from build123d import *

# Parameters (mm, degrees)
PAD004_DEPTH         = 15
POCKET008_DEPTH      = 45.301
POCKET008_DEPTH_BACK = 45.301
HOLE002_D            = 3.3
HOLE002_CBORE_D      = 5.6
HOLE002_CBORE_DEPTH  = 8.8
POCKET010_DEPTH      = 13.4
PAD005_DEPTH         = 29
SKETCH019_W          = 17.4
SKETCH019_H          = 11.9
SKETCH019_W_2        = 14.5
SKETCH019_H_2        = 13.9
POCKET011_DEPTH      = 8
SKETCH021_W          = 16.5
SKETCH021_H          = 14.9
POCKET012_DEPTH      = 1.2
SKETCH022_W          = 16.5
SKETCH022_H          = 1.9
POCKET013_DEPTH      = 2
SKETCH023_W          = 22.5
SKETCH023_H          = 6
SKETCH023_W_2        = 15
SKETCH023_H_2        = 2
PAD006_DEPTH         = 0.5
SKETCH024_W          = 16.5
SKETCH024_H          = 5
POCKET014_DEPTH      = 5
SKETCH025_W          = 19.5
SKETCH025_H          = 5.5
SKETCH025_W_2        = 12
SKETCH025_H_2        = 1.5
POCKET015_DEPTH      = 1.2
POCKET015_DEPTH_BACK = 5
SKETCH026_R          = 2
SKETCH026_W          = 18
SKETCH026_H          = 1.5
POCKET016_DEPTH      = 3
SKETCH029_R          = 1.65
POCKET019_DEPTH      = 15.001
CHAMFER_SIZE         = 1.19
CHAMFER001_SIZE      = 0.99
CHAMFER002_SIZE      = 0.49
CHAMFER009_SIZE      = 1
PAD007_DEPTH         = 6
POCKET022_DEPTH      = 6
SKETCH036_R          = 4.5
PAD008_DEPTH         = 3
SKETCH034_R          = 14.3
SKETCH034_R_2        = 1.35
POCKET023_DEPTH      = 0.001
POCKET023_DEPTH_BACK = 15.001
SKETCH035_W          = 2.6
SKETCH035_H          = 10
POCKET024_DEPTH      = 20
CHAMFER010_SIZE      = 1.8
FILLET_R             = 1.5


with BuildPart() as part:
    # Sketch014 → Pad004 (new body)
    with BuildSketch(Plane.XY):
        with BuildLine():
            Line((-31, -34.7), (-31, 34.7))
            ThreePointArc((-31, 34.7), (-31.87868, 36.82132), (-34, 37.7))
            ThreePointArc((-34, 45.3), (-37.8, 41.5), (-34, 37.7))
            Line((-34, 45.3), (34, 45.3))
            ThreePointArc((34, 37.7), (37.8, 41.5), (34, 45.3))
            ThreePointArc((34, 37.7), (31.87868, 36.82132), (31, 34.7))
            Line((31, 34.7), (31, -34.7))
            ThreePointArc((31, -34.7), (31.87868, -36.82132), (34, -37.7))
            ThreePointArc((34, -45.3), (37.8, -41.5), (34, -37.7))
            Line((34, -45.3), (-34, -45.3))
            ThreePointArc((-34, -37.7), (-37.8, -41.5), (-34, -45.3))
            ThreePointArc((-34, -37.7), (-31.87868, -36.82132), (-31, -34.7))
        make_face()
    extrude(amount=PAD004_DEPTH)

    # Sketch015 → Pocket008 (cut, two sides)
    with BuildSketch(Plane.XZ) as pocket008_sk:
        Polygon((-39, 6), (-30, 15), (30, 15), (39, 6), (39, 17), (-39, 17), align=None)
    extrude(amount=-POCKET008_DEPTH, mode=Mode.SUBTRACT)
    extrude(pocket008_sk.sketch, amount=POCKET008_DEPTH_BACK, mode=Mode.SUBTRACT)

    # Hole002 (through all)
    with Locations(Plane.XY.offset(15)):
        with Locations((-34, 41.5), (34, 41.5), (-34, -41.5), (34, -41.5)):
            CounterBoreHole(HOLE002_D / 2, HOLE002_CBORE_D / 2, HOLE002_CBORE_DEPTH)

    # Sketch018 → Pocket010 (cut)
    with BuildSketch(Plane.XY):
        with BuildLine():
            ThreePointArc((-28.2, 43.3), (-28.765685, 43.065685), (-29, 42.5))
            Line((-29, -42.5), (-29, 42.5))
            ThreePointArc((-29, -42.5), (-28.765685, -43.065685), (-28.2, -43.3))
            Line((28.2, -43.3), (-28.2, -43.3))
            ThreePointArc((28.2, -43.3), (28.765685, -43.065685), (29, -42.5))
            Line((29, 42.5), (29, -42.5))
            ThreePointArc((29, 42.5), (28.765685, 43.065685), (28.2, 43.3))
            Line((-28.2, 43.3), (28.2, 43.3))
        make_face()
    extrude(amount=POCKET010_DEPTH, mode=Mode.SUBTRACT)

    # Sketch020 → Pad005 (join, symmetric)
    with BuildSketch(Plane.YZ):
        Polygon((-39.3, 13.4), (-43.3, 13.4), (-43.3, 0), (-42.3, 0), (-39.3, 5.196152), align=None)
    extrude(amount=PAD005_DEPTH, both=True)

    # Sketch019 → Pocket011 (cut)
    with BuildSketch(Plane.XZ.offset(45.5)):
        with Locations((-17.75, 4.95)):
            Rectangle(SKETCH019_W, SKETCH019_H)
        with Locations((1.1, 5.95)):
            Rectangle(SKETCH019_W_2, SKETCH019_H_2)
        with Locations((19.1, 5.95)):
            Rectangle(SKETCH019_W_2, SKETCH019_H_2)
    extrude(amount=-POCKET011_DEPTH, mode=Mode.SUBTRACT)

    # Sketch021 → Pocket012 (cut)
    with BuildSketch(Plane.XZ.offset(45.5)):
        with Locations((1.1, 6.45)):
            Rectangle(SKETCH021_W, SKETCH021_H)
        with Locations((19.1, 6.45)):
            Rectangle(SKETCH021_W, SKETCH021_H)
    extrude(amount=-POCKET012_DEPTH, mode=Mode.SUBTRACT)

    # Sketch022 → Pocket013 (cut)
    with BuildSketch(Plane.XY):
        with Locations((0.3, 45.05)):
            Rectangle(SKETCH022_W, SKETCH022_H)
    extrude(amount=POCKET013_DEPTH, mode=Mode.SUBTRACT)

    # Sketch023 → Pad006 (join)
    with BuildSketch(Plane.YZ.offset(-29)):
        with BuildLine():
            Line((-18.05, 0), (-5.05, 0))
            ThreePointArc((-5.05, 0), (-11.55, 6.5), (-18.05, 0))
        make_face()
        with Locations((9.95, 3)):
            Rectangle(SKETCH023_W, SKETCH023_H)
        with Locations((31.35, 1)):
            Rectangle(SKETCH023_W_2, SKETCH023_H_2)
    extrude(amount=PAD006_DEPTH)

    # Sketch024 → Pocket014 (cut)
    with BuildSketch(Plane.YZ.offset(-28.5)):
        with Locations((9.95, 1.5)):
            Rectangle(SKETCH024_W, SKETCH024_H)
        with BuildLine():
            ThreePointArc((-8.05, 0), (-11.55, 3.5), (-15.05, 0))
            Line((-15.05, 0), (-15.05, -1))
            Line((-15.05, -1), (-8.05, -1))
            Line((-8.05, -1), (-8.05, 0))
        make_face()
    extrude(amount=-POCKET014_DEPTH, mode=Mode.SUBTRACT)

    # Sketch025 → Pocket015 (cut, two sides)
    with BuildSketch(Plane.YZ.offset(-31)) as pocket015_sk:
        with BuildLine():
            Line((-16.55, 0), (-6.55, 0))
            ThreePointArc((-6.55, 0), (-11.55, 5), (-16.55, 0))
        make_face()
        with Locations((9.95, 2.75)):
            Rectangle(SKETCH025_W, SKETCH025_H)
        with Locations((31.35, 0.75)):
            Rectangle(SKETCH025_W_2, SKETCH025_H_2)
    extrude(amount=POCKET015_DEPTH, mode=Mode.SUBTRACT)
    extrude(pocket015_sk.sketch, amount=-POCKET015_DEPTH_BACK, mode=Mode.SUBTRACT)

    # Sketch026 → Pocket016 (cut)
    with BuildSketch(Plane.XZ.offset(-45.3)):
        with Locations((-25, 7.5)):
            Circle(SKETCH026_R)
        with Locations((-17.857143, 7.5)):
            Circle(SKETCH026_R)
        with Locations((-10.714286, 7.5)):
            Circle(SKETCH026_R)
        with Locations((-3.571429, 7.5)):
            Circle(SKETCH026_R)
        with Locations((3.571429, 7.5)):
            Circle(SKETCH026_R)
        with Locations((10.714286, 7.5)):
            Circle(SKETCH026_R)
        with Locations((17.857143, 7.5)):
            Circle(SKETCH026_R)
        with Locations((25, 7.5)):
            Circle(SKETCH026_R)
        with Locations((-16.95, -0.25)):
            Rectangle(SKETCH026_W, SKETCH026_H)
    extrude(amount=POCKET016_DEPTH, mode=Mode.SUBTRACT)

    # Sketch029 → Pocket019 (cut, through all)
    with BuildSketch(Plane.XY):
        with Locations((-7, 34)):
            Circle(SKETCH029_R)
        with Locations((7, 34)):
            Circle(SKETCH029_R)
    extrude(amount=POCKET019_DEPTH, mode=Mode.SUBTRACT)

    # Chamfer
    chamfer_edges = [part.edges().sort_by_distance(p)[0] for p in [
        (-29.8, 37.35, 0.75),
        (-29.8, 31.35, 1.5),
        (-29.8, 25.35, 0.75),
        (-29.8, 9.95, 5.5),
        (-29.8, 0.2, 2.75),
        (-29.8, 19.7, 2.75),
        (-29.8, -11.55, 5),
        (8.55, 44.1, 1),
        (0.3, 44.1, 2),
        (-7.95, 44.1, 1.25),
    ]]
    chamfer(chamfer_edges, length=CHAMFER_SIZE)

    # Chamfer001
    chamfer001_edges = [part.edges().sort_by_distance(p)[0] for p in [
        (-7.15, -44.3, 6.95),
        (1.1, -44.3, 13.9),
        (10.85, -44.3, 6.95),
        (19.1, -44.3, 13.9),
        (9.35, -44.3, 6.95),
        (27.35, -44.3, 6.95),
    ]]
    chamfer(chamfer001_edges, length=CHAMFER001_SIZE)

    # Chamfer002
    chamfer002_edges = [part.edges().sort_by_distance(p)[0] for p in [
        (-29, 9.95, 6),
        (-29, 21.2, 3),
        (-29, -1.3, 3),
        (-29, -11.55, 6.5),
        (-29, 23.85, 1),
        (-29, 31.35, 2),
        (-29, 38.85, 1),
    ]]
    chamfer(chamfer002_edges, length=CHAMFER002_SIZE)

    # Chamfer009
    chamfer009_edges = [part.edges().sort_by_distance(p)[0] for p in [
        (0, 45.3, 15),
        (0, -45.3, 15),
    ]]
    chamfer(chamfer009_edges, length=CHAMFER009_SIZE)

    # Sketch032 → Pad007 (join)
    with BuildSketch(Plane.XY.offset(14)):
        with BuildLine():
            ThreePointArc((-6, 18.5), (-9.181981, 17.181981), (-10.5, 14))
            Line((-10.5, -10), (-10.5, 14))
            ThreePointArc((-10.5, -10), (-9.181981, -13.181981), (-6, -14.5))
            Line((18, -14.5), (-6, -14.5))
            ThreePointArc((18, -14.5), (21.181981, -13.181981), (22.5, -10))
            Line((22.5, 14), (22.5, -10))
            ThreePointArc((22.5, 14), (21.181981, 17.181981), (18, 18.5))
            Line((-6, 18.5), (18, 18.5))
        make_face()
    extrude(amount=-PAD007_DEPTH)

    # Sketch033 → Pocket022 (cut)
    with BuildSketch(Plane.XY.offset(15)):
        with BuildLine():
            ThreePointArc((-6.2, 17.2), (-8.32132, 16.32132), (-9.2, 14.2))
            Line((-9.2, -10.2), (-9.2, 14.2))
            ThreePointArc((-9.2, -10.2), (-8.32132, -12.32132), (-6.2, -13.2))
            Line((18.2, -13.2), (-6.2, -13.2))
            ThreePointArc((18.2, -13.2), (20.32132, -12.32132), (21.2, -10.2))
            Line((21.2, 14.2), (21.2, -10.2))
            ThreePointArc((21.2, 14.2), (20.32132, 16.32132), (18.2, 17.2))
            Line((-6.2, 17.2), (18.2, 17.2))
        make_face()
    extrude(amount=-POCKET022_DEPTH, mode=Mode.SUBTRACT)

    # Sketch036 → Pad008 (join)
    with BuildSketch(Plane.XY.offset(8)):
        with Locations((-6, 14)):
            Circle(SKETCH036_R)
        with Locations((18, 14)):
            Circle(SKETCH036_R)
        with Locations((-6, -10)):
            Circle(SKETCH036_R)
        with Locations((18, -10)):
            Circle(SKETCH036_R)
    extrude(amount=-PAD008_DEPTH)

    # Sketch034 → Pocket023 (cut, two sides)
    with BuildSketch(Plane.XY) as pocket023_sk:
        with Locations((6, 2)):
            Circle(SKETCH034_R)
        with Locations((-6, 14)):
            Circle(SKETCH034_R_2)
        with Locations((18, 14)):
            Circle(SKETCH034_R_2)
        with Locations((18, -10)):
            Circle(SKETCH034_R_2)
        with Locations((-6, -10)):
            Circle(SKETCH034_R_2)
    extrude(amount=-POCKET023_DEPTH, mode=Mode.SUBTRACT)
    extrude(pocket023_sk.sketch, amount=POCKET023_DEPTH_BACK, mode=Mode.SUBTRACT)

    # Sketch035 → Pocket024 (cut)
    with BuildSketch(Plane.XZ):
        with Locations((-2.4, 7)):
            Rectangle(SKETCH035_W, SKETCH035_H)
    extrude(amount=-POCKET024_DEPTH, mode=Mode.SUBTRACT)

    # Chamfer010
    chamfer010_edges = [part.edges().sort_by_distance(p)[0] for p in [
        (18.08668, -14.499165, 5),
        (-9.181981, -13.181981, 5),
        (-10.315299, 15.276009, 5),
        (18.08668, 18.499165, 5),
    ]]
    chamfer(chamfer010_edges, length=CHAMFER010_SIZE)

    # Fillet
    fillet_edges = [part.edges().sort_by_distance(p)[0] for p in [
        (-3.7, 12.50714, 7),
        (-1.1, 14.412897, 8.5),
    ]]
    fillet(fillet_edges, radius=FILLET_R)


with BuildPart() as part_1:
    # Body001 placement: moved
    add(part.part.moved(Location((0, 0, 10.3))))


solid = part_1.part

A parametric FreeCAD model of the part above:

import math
import FreeCAD as App
import Part
import Sketcher
Q = App.Units.Quantity


def edges_at(feature, points):
    """Names of the edges that pass closest to the given points."""
    edges = feature.Shape.Edges
    near = lambda p: min(range(len(edges)), key=lambda i: edges[i].distToShape(Part.Vertex(*p))[0])
    return sorted({f"Edge{near(p) + 1}" for p in points})


def add_polygon(sketch, points):
    """Adds a closed chain of lines whose ends are joined by coincident constraints."""
    first, n = sketch.GeometryCount, len(points)
    for a, b in zip(points, points[1:] + points[:1]):
        sketch.addGeometry(Part.LineSegment(App.Vector(*a, 0), App.Vector(*b, 0)), False)
    for i in range(n):
        sketch.addConstraint(Sketcher.Constraint("Coincident", first + i, 2, first + (i + 1) % n, 1))

doc = App.newDocument("Part")
body = doc.addObject("PartDesign::Body", "Body")

# Sketch on XY plane
sketch1 = doc.addObject("Sketcher::SketchObject", "Sketch")
body.addObject(sketch1)
sketch1.AttachmentSupport = (doc.XY_Plane, [""])
sketch1.MapMode = "FlatFace"
sketch1.addGeometry(Part.LineSegment(App.Vector(-31, 34.7, 0), App.Vector(-31, -34.7, 0)), False)
sketch1.addGeometry(Part.ArcOfCircle(Part.Circle(App.Vector(-34, -34.7, 0), App.Vector(0, 0, 1), 3), math.radians(-90), math.radians(0)), False)
sketch1.addGeometry(Part.ArcOfCircle(Part.Circle(App.Vector(-34, -41.5, 0), App.Vector(0, 0, 1), 3.8), math.radians(90), math.radians(270)), False)
sketch1.addGeometry(Part.LineSegment(App.Vector(-34, -45.3, 0), App.Vector(34, -45.3, 0)), False)
sketch1.addGeometry(Part.ArcOfCircle(Part.Circle(App.Vector(34, -41.5, 0), App.Vector(0, 0, 1), 3.8), math.radians(-90), math.radians(90)), False)
sketch1.addGeometry(Part.ArcOfCircle(Part.Circle(App.Vector(34, -34.7, 0), App.Vector(0, 0, 1), 3), math.radians(-180), math.radians(-90)), False)
sketch1.addGeometry(Part.LineSegment(App.Vector(31, -34.7, 0), App.Vector(31, 34.7, 0)), False)
sketch1.addGeometry(Part.ArcOfCircle(Part.Circle(App.Vector(34, 34.7, 0), App.Vector(0, 0, 1), 3), math.radians(90), math.radians(180)), False)
sketch1.addGeometry(Part.ArcOfCircle(Part.Circle(App.Vector(34, 41.5, 0), App.Vector(0, 0, 1), 3.8), math.radians(-90), math.radians(90)), False)
sketch1.addGeometry(Part.LineSegment(App.Vector(34, 45.3, 0), App.Vector(-34, 45.3, 0)), False)
sketch1.addGeometry(Part.ArcOfCircle(Part.Circle(App.Vector(-34, 41.5, 0), App.Vector(0, 0, 1), 3.8), math.radians(90), math.radians(270)), False)
sketch1.addGeometry(Part.ArcOfCircle(Part.Circle(App.Vector(-34, 34.7, 0), App.Vector(0, 0, 1), 3), math.radians(0), math.radians(90)), False)
sketch1.addConstraint(Sketcher.Constraint("Tangent", 0, 2, 1, 2))
sketch1.addConstraint(Sketcher.Constraint("Tangent", 1, 1, 2, 1))
sketch1.addConstraint(Sketcher.Constraint("Tangent", 2, 2, 3, 1))
sketch1.addConstraint(Sketcher.Constraint("Tangent", 3, 2, 4, 1))
sketch1.addConstraint(Sketcher.Constraint("Tangent", 4, 2, 5, 2))
sketch1.addConstraint(Sketcher.Constraint("Tangent", 5, 1, 6, 1))
sketch1.addConstraint(Sketcher.Constraint("Tangent", 6, 2, 7, 2))
sketch1.addConstraint(Sketcher.Constraint("Tangent", 7, 1, 8, 1))
sketch1.addConstraint(Sketcher.Constraint("Tangent", 8, 2, 9, 1))
sketch1.addConstraint(Sketcher.Constraint("Tangent", 9, 2, 10, 1))
sketch1.addConstraint(Sketcher.Constraint("Tangent", 10, 2, 11, 2))
sketch1.addConstraint(Sketcher.Constraint("Tangent", 11, 1, 0, 1))
sketch1.addConstraint(Sketcher.Constraint("Vertical", 0))
sketch1.addConstraint(Sketcher.Constraint("Horizontal", 3))
sketch1.addConstraint(Sketcher.Constraint("Vertical", 6))
sketch1.addConstraint(Sketcher.Constraint("Horizontal", 9))
sketch1.addConstraint(Sketcher.Constraint("Equal", 2, 4))
sketch1.addConstraint(Sketcher.Constraint("Equal", 1, 5))
sketch1.addConstraint(Sketcher.Constraint("Equal", 5, 7))
sketch1.addConstraint(Sketcher.Constraint("Equal", 4, 8))
sketch1.addConstraint(Sketcher.Constraint("Equal", 8, 10))
sketch1.addConstraint(Sketcher.Constraint("Equal", 7, 11))
sketch1.addConstraint(Sketcher.Constraint("Symmetric", 1, 3, 7, 3, -1, 1))
sketch1.addConstraint(Sketcher.Constraint("Vertical", 1, 3, 2, 3))
sketch1.addConstraint(Sketcher.Constraint("Vertical", 4, 3, 5, 3))
sketch1.addConstraint(Sketcher.Constraint("Vertical", 7, 3, 8, 3))
sketch1.addConstraint(Sketcher.Constraint("Vertical", 2, 3, 10, 3))
sketch1.addConstraint(Sketcher.Constraint("Radius", 1, Q("3.000001 mm")))
sketch1.addConstraint(Sketcher.Constraint("Radius", 2, Q("3.8 mm")))
sketch1.addConstraint(Sketcher.Constraint("DistanceX", 3, 1, 3, 2, Q("68 mm")))
sketch1.addConstraint(Sketcher.Constraint("DistanceY", 0, 2, 0, 1, Q("69.4 mm")))
pad1 = doc.addObject("PartDesign::Pad", "Pad")
body.addObject(pad1)
pad1.Profile = sketch1
pad1.Length = 15

# Sketch on XZ plane
sketch2 = doc.addObject("Sketcher::SketchObject", "Sketch001")
body.addObject(sketch2)
sketch2.AttachmentSupport = (doc.XZ_Plane, [""])
sketch2.MapMode = "FlatFace"
add_polygon(sketch2, [(-39, 6), (-30, 15), (30, 15), (39, 6), (39, 17), (-39, 17)])  # lines 0-5
sketch2.addConstraint(Sketcher.Constraint("Horizontal", 1))
sketch2.addConstraint(Sketcher.Constraint("Vertical", 3))
sketch2.addConstraint(Sketcher.Constraint("Horizontal", 4))
sketch2.addConstraint(Sketcher.Constraint("Vertical", 5))
sketch2.addConstraint(Sketcher.Constraint("Symmetric", 2, 2, 5, 2, -2))
sketch2.addConstraint(Sketcher.Constraint("Perpendicular", 0, 2))
sketch2.addConstraint(Sketcher.Constraint("Equal", 0, 2))
sketch2.addConstraint(Sketcher.Constraint("DistanceX", 1, 1, 1, 2, Q("60 mm")))
sketch2.addConstraint(Sketcher.Constraint("DistanceX", 4, 2, 4, 1, Q("78 mm")))
sketch2.addConstraint(Sketcher.Constraint("DistanceY", 3, 1, 3, 2, Q("11 mm")))
sketch2.addConstraint(Sketcher.Constraint("DistanceY", -1, 1, 0, 2, Q("15 mm")))
pocket1 = doc.addObject("PartDesign::Pocket", "Pocket")
body.addObject(pocket1)
pocket1.Profile = sketch2
pocket1.Type = "ThroughAll"
pocket1.Midplane = True

# Sketch on XY plane
sketch3 = doc.addObject("Sketcher::SketchObject", "Sketch002")
body.addObject(sketch3)
sketch3.AttachmentSupport = (doc.XY_Plane, [""])
sketch3.MapMode = "FlatFace"
sketch3.AttachmentOffset = App.Placement(App.Vector(0, 0, 15), App.Rotation())
sketch3.addGeometry(Part.Circle(App.Vector(-34, 41.5, 0), App.Vector(0, 0, 1), 1.6), False)
sketch3.addGeometry(Part.Circle(App.Vector(34, 41.5, 0), App.Vector(0, 0, 1), 1.6), False)
sketch3.addGeometry(Part.Circle(App.Vector(-34, -41.5, 0), App.Vector(0, 0, 1), 1.6), False)
sketch3.addGeometry(Part.Circle(App.Vector(34, -41.5, 0), App.Vector(0, 0, 1), 1.6), False)
sketch3.addConstraint(Sketcher.Constraint("Equal", 0, 1))
sketch3.addConstraint(Sketcher.Constraint("Equal", 1, 2))
sketch3.addConstraint(Sketcher.Constraint("Equal", 2, 3))
sketch3.addConstraint(Sketcher.Constraint("Symmetric", 1, 3, 2, 3, -1, 1))
sketch3.addConstraint(Sketcher.Constraint("Symmetric", 0, 3, 3, 3, -1, 1))
sketch3.addConstraint(Sketcher.Constraint("Symmetric", 0, 3, 1, 3, -2))
sketch3.addConstraint(Sketcher.Constraint("Diameter", 0, Q("3.3 mm")))
sketch3.addConstraint(Sketcher.Constraint("DistanceX", 0, 3, -1, 1, Q("34 mm")))
sketch3.addConstraint(Sketcher.Constraint("DistanceY", 2, 3, 0, 3, Q("83 mm")))
doc.recompute()
hole = doc.addObject("PartDesign::Hole", "Hole")
body.addObject(hole)
hole.Profile = sketch3
hole.ThreadType = "None"
hole.Diameter = 3.3
hole.DepthType = "ThroughAll"
hole.HoleCutType = "Counterbore"
hole.HoleCutDiameter = 5.6
hole.HoleCutDepth = 8.8

# Sketch on XY plane
sketch4 = doc.addObject("Sketcher::SketchObject", "Sketch003")
body.addObject(sketch4)
sketch4.AttachmentSupport = (doc.XY_Plane, [""])
sketch4.MapMode = "FlatFace"
sketch4.addGeometry(Part.ArcOfCircle(Part.Circle(App.Vector(-28.2, 42.5, 0), App.Vector(0, 0, 1), 0.8), math.radians(90), math.radians(180)), False)
sketch4.addGeometry(Part.LineSegment(App.Vector(-29, 42.5, 0), App.Vector(-29, -42.5, 0)), False)
sketch4.addGeometry(Part.ArcOfCircle(Part.Circle(App.Vector(-28.2, -42.5, 0), App.Vector(0, 0, 1), 0.8), math.radians(-180), math.radians(-90)), False)
sketch4.addGeometry(Part.LineSegment(App.Vector(-28.2, -43.3, 0), App.Vector(28.2, -43.3, 0)), False)
sketch4.addGeometry(Part.ArcOfCircle(Part.Circle(App.Vector(28.2, -42.5, 0), App.Vector(0, 0, 1), 0.8), math.radians(-90), math.radians(0)), False)
sketch4.addGeometry(Part.LineSegment(App.Vector(29, -42.5, 0), App.Vector(29, 42.5, 0)), False)
sketch4.addGeometry(Part.ArcOfCircle(Part.Circle(App.Vector(28.2, 42.5, 0), App.Vector(0, 0, 1), 0.8), math.radians(0), math.radians(90)), False)
sketch4.addGeometry(Part.LineSegment(App.Vector(28.2, 43.3, 0), App.Vector(-28.2, 43.3, 0)), False)
sketch4.addConstraint(Sketcher.Constraint("Tangent", 0, 2, 1, 1))
sketch4.addConstraint(Sketcher.Constraint("Tangent", 1, 2, 2, 1))
sketch4.addConstraint(Sketcher.Constraint("Tangent", 2, 2, 3, 1))
sketch4.addConstraint(Sketcher.Constraint("Tangent", 3, 2, 4, 1))
sketch4.addConstraint(Sketcher.Constraint("Tangent", 4, 2, 5, 1))
sketch4.addConstraint(Sketcher.Constraint("Tangent", 5, 2, 6, 1))
sketch4.addConstraint(Sketcher.Constraint("Tangent", 6, 2, 7, 1))
sketch4.addConstraint(Sketcher.Constraint("Tangent", 7, 2, 0, 1))
sketch4.addConstraint(Sketcher.Constraint("Vertical", 1))
sketch4.addConstraint(Sketcher.Constraint("Horizontal", 3))
sketch4.addConstraint(Sketcher.Constraint("Vertical", 5))
sketch4.addConstraint(Sketcher.Constraint("Horizontal", 7))
sketch4.addConstraint(Sketcher.Constraint("Equal", 0, 2))
sketch4.addConstraint(Sketcher.Constraint("Equal", 2, 4))
sketch4.addConstraint(Sketcher.Constraint("Equal", 4, 6))
sketch4.addConstraint(Sketcher.Constraint("Symmetric", 0, 3, 4, 3, -1, 1))
sketch4.addConstraint(Sketcher.Constraint("Radius", 0, Q("0.800001 mm")))
sketch4.addConstraint(Sketcher.Constraint("DistanceY", 1, 2, 1, 1, Q("85 mm")))
sketch4.addConstraint(Sketcher.Constraint("DistanceX", 3, 1, 3, 2, Q("56.4 mm")))
pocket2 = doc.addObject("PartDesign::Pocket", "Pocket001")
body.addObject(pocket2)
pocket2.Profile = sketch4
pocket2.Length = 13.4
pocket2.Reversed = True

# Sketch on YZ plane
sketch5 = doc.addObject("Sketcher::SketchObject", "Sketch004")
body.addObject(sketch5)
sketch5.AttachmentSupport = (doc.YZ_Plane, [""])
sketch5.MapMode = "FlatFace"
add_polygon(sketch5, [(-39.3, 13.4), (-43.3, 13.4), (-43.3, 0), (-42.3, 0), (-39.3, 5.2)])  # lines 0-4
sketch5.addConstraint(Sketcher.Constraint("Horizontal", 0))
sketch5.addConstraint(Sketcher.Constraint("Vertical", 1))
sketch5.addConstraint(Sketcher.Constraint("Horizontal", 2))
sketch5.addConstraint(Sketcher.Constraint("Vertical", 4))
sketch5.addConstraint(Sketcher.Constraint("PointOnObject", 1, 2, -1))
sketch5.addConstraint(Sketcher.Constraint("DistanceX", 0, 2, 0, 1, Q("4 mm")))
sketch5.addConstraint(Sketcher.Constraint("DistanceX", 2, 1, 2, 2, Q("1 mm")))
sketch5.addConstraint(Sketcher.Constraint("Angle", 3, Q("59.999998 deg")))
sketch5.addConstraint(Sketcher.Constraint("DistanceY", 1, 2, 1, 1, Q("13.4 mm")))
sketch5.addConstraint(Sketcher.Constraint("DistanceX", 0, 2, -1, 1, Q("43.3 mm")))
pad2 = doc.addObject("PartDesign::Pad", "Pad001")
body.addObject(pad2)
pad2.Profile = sketch5
pad2.Length = 58
pad2.Midplane = True

# Sketch on XZ plane
sketch6 = doc.addObject("Sketcher::SketchObject", "Sketch005")
body.addObject(sketch6)
sketch6.AttachmentSupport = (doc.XZ_Plane, [""])
sketch6.MapMode = "FlatFace"
sketch6.AttachmentOffset = App.Placement(App.Vector(0, 0, 45.5), App.Rotation())
add_polygon(sketch6, [(-26, 11), (-26, -1), (-9, -1), (-9, 11)])  # lines 0-3
add_polygon(sketch6, [(-6, 13), (-6, -1), (8, -1), (8, 13)])  # lines 4-7
add_polygon(sketch6, [(12, 13), (12, -1), (26, -1), (26, 13)])  # lines 8-11
sketch6.addConstraint(Sketcher.Constraint("Vertical", 0))
sketch6.addConstraint(Sketcher.Constraint("Horizontal", 1))
sketch6.addConstraint(Sketcher.Constraint("Vertical", 2))
sketch6.addConstraint(Sketcher.Constraint("Horizontal", 3))
sketch6.addConstraint(Sketcher.Constraint("Vertical", 4))
sketch6.addConstraint(Sketcher.Constraint("Horizontal", 5))
sketch6.addConstraint(Sketcher.Constraint("Vertical", 6))
sketch6.addConstraint(Sketcher.Constraint("Horizontal", 7))
sketch6.addConstraint(Sketcher.Constraint("Vertical", 8))
sketch6.addConstraint(Sketcher.Constraint("Horizontal", 9))
sketch6.addConstraint(Sketcher.Constraint("Vertical", 10))
sketch6.addConstraint(Sketcher.Constraint("Horizontal", 11))
sketch6.addConstraint(Sketcher.Constraint("Horizontal", 1, 2, 4, 2))
sketch6.addConstraint(Sketcher.Constraint("Horizontal", 5, 2, 8, 2))
sketch6.addConstraint(Sketcher.Constraint("Horizontal", 7, 2, 10, 2))
sketch6.addConstraint(Sketcher.Constraint("Equal", 7, 9))
sketch6.addConstraint(Sketcher.Constraint("DistanceX", 1, 1, 1, 2, Q("17.4 mm")))
sketch6.addConstraint(Sketcher.Constraint("DistanceX", 5, 1, 5, 2, Q("14.5 mm")))
sketch6.addConstraint(Sketcher.Constraint("DistanceY", 0, 2, 0, 1, Q("11.9 mm")))
sketch6.addConstraint(Sketcher.Constraint("DistanceY", 4, 2, 4, 1, Q("13.9 mm")))
sketch6.addConstraint(Sketcher.Constraint("DistanceY", 0, 2, -1, 1, Q("1 mm")))
sketch6.addConstraint(Sketcher.Constraint("DistanceX", 4, 2, 8, 2, Q("18 mm")))
sketch6.addConstraint(Sketcher.Constraint("DistanceX", 1, 2, 4, 2, Q("2.9 mm")))
sketch6.addConstraint(Sketcher.Constraint("DistanceX", 0, 2, -1, 1, Q("26.45 mm")))
pocket3 = doc.addObject("PartDesign::Pocket", "Pocket002")
body.addObject(pocket3)
pocket3.Profile = sketch6
pocket3.Length = 8

# Sketch on XZ plane
sketch7 = doc.addObject("Sketcher::SketchObject", "Sketch006")
body.addObject(sketch7)
sketch7.AttachmentSupport = (doc.XZ_Plane, [""])
sketch7.MapMode = "FlatFace"
sketch7.AttachmentOffset = App.Placement(App.Vector(0, 0, 45.5), App.Rotation())
add_polygon(sketch7, [(-7, 14), (-7, -1), (9, -1), (9, 14)])  # lines 0-3
add_polygon(sketch7, [(11, 14), (11, -1), (27, -1), (27, 14)])  # lines 4-7
sketch7.addConstraint(Sketcher.Constraint("Vertical", 0))
sketch7.addConstraint(Sketcher.Constraint("Horizontal", 1))
sketch7.addConstraint(Sketcher.Constraint("Vertical", 2))
sketch7.addConstraint(Sketcher.Constraint("Horizontal", 3))
sketch7.addConstraint(Sketcher.Constraint("Vertical", 4))
sketch7.addConstraint(Sketcher.Constraint("Horizontal", 5))
sketch7.addConstraint(Sketcher.Constraint("Vertical", 6))
sketch7.addConstraint(Sketcher.Constraint("Horizontal", 7))
sketch7.addConstraint(Sketcher.Constraint("Horizontal", 1, 2, 4, 2))
sketch7.addConstraint(Sketcher.Constraint("Horizontal", 3, 2, 6, 2))
sketch7.addConstraint(Sketcher.Constraint("Equal", 3, 5))
sketch7.addConstraint(Sketcher.Constraint("DistanceX", 1, 1, 1, 2, Q("16.5 mm")))
sketch7.addConstraint(Sketcher.Constraint("DistanceY", 0, 2, 0, 1, Q("14.9 mm")))
sketch7.addConstraint(Sketcher.Constraint("DistanceY", 0, 2, -1, 1, Q("1 mm")))
sketch7.addConstraint(Sketcher.Constraint("DistanceX", 0, 2, 4, 2, Q("18 mm")))
sketch7.addConstraint(Sketcher.Constraint("DistanceX", 0, 2, -1, 1, Q("7.15 mm")))
pocket4 = doc.addObject("PartDesign::Pocket", "Pocket003")
body.addObject(pocket4)
pocket4.Profile = sketch7
pocket4.Length = 1.2

# Sketch on XY plane
sketch8 = doc.addObject("Sketcher::SketchObject", "Sketch007")
body.addObject(sketch8)
sketch8.AttachmentSupport = (doc.XY_Plane, [""])
sketch8.MapMode = "FlatFace"
add_polygon(sketch8, [(-8, 46), (-8, 44.1), (8.6, 44.1), (8.6, 46)])  # lines 0-3
sketch8.addConstraint(Sketcher.Constraint("Vertical", 0))
sketch8.addConstraint(Sketcher.Constraint("Horizontal", 1))
sketch8.addConstraint(Sketcher.Constraint("Vertical", 2))
sketch8.addConstraint(Sketcher.Constraint("Horizontal", 3))
sketch8.addConstraint(Sketcher.Constraint("DistanceX", 1, 1, 1, 2, Q("16.5 mm")))
sketch8.addConstraint(Sketcher.Constraint("DistanceY", 0, 2, 0, 1, Q("1.9 mm")))
sketch8.addConstraint(Sketcher.Constraint("DistanceY", -1, 1, 2, 2, Q("46 mm")))
sketch8.addConstraint(Sketcher.Constraint("DistanceX", 0, 2, -1, 1, Q("7.95 mm")))
pocket5 = doc.addObject("PartDesign::Pocket", "Pocket004")
body.addObject(pocket5)
pocket5.Profile = sketch8
pocket5.Length = 2
pocket5.Reversed = True

# Sketch on YZ plane
sketch9 = doc.addObject("Sketcher::SketchObject", "Sketch008")
body.addObject(sketch9)
sketch9.AttachmentSupport = (doc.YZ_Plane, [""])
sketch9.MapMode = "FlatFace"
sketch9.AttachmentOffset = App.Placement(App.Vector(0, 0, -29), App.Rotation())
sketch9.addGeometry(Part.LineSegment(App.Vector(-18.1, 0, 0), App.Vector(-5, 0, 0)), False)  # 0
sketch9.addGeometry(Part.ArcOfCircle(Part.Circle(App.Vector(-11.6, 0, 0), App.Vector(0, 0, 1), 6.5), math.radians(0), math.radians(180)), False)  # 1
add_polygon(sketch9, [(-1.3, 6), (-1.3, 0), (21.2, 0), (21.2, 6)])  # lines 2-5
add_polygon(sketch9, [(23.9, 2), (23.9, 0), (38.9, 0), (38.9, 2)])  # lines 6-9
sketch9.addConstraint(Sketcher.Constraint("Coincident", 0, 1, 1, 2))
sketch9.addConstraint(Sketcher.Constraint("Coincident", 1, 1, 0, 2))
sketch9.addConstraint(Sketcher.Constraint("Horizontal", 0))
sketch9.addConstraint(Sketcher.Constraint("Vertical", 2))
sketch9.addConstraint(Sketcher.Constraint("Horizontal", 3))
sketch9.addConstraint(Sketcher.Constraint("Vertical", 4))
sketch9.addConstraint(Sketcher.Constraint("Horizontal", 5))
sketch9.addConstraint(Sketcher.Constraint("Vertical", 6))
sketch9.addConstraint(Sketcher.Constraint("Horizontal", 7))
sketch9.addConstraint(Sketcher.Constraint("Vertical", 8))
sketch9.addConstraint(Sketcher.Constraint("Horizontal", 9))
sketch9.addConstraint(Sketcher.Constraint("PointOnObject", 1, 3, -1))
sketch9.addConstraint(Sketcher.Constraint("PointOnObject", 0, 1, -1))
sketch9.addConstraint(Sketcher.Constraint("PointOnObject", 2, 2, -1))
sketch9.addConstraint(Sketcher.Constraint("PointOnObject", 6, 2, -1))
sketch9.addConstraint(Sketcher.Constraint("Radius", 1, Q("6.5 mm")))
sketch9.addConstraint(Sketcher.Constraint("DistanceX", 7, 1, 7, 2, Q("15 mm")))
sketch9.addConstraint(Sketcher.Constraint("DistanceY", 2, 2, 2, 1, Q("6 mm")))
sketch9.addConstraint(Sketcher.Constraint("DistanceY", 6, 2, 6, 1, Q("2 mm")))
sketch9.addConstraint(Sketcher.Constraint("DistanceX", 3, 1, 3, 2, Q("22.5 mm")))
sketch9.addConstraint(Sketcher.Constraint("DistanceX", 2, 2, -1, 1, Q("1.3 mm")))
sketch9.addConstraint(Sketcher.Constraint("DistanceX", 1, 1, 6, 2, Q("28.9 mm")))
sketch9.addConstraint(Sketcher.Constraint("DistanceX", 1, 3, -1, 1, Q("11.55 mm")))
pad3 = doc.addObject("PartDesign::Pad", "Pad002")
body.addObject(pad3)
pad3.Profile = sketch9
pad3.Length = 0.5

# Sketch on YZ plane
sketch10 = doc.addObject("Sketcher::SketchObject", "Sketch009")
body.addObject(sketch10)
sketch10.AttachmentSupport = (doc.YZ_Plane, [""])
sketch10.MapMode = "FlatFace"
sketch10.AttachmentOffset = App.Placement(App.Vector(0, 0, -28.5), App.Rotation())
add_polygon(sketch10, [(1.7, 4), (1.7, -1), (18.2, -1), (18.2, 4)])  # lines 0-3
sketch10.addGeometry(Part.ArcOfCircle(Part.Circle(App.Vector(-11.6, 0, 0), App.Vector(0, 0, 1), 3.5), math.radians(0), math.radians(180)), False)  # 4
sketch10.addGeometry(Part.LineSegment(App.Vector(-15.1, 0, 0), App.Vector(-15.1, -1, 0)), False)  # 5
sketch10.addGeometry(Part.LineSegment(App.Vector(-15.1, -1, 0), App.Vector(-8.1, -1, 0)), False)  # 6
sketch10.addGeometry(Part.LineSegment(App.Vector(-8.1, -1, 0), App.Vector(-8.1, 0, 0)), False)  # 7
sketch10.addConstraint(Sketcher.Constraint("Tangent", 4, 2, 5, 1))
sketch10.addConstraint(Sketcher.Constraint("Coincident", 5, 2, 6, 1))
sketch10.addConstraint(Sketcher.Constraint("Coincident", 6, 2, 7, 1))
sketch10.addConstraint(Sketcher.Constraint("Tangent", 7, 2, 4, 1))
sketch10.addConstraint(Sketcher.Constraint("Vertical", 0))
sketch10.addConstraint(Sketcher.Constraint("Horizontal", 1))
sketch10.addConstraint(Sketcher.Constraint("Vertical", 2))
sketch10.addConstraint(Sketcher.Constraint("Horizontal", 3))
sketch10.addConstraint(Sketcher.Constraint("Vertical", 5))
sketch10.addConstraint(Sketcher.Constraint("Horizontal", 6))
sketch10.addConstraint(Sketcher.Constraint("Vertical", 7))
sketch10.addConstraint(Sketcher.Constraint("PointOnObject", 4, 3, -1))
sketch10.addConstraint(Sketcher.Constraint("Horizontal", 1, 2, 5, 2))
sketch10.addConstraint(Sketcher.Constraint("Radius", 4, Q("3.5 mm")))
sketch10.addConstraint(Sketcher.Constraint("DistanceY", 0, 2, 0, 1, Q("5 mm")))
sketch10.addConstraint(Sketcher.Constraint("DistanceY", 5, 2, 5, 1, Q("1 mm")))
sketch10.addConstraint(Sketcher.Constraint("DistanceX", 1, 1, 1, 2, Q("16.5 mm")))
sketch10.addConstraint(Sketcher.Constraint("DistanceX", -1, 1, 0, 2, Q("1.7 mm")))
sketch10.addConstraint(Sketcher.Constraint("DistanceX", 4, 3, -1, 1, Q("11.55 mm")))
pocket6 = doc.addObject("PartDesign::Pocket", "Pocket005")
body.addObject(pocket6)
pocket6.Profile = sketch10
pocket6.Length = 5

# Sketch on YZ plane
sketch11 = doc.addObject("Sketcher::SketchObject", "Sketch010")
body.addObject(sketch11)
sketch11.AttachmentSupport = (doc.YZ_Plane, [""])
sketch11.MapMode = "FlatFace"
sketch11.AttachmentOffset = App.Placement(App.Vector(0, 0, -31), App.Rotation())
sketch11.addGeometry(Part.LineSegment(App.Vector(-16.6, 0, 0), App.Vector(-6.5, 0, 0)), False)  # 0
sketch11.addGeometry(Part.ArcOfCircle(Part.Circle(App.Vector(-11.6, 0, 0), App.Vector(0, 0, 1), 5), math.radians(0), math.radians(180)), False)  # 1
add_polygon(sketch11, [(0.2, 5.5), (0.2, 0), (19.7, 0), (19.7, 5.5)])  # lines 2-5
add_polygon(sketch11, [(25.4, 1.5), (25.4, 0), (37.4, 0), (37.4, 1.5)])  # lines 6-9
sketch11.addConstraint(Sketcher.Constraint("Coincident", 0, 1, 1, 2))
sketch11.addConstraint(Sketcher.Constraint("Coincident", 1, 1, 0, 2))
sketch11.addConstraint(Sketcher.Constraint("Horizontal", 0))
sketch11.addConstraint(Sketcher.Constraint("Vertical", 2))
sketch11.addConstraint(Sketcher.Constraint("Horizontal", 3))
sketch11.addConstraint(Sketcher.Constraint("Vertical", 4))
sketch11.addConstraint(Sketcher.Constraint("Horizontal", 5))
sketch11.addConstraint(Sketcher.Constraint("Vertical", 6))
sketch11.addConstraint(Sketcher.Constraint("Horizontal", 7))
sketch11.addConstraint(Sketcher.Constraint("Vertical", 8))
sketch11.addConstraint(Sketcher.Constraint("Horizontal", 9))
sketch11.addConstraint(Sketcher.Constraint("PointOnObject", 1, 3, -1))
sketch11.addConstraint(Sketcher.Constraint("PointOnObject", 0, 1, -1))
sketch11.addConstraint(Sketcher.Constraint("PointOnObject", 2, 2, -1))
sketch11.addConstraint(Sketcher.Constraint("PointOnObject", 6, 2, -1))
sketch11.addConstraint(Sketcher.Constraint("Radius", 1, Q("5 mm")))
sketch11.addConstraint(Sketcher.Constraint("DistanceX", 7, 1, 7, 2, Q("12 mm")))
sketch11.addConstraint(Sketcher.Constraint("DistanceX", 3, 1, 3, 2, Q("19.5 mm")))
sketch11.addConstraint(Sketcher.Constraint("DistanceY", 2, 2, 2, 1, Q("5.5 mm")))
sketch11.addConstraint(Sketcher.Constraint("DistanceY", 6, 2, 6, 1, Q("1.5 mm")))
sketch11.addConstraint(Sketcher.Constraint("DistanceX", -1, 1, 2, 2, Q("0.2 mm")))
sketch11.addConstraint(Sketcher.Constraint("DistanceX", 1, 1, 6, 2, Q("31.9 mm")))
sketch11.addConstraint(Sketcher.Constraint("DistanceX", 1, 3, -1, 1, Q("11.55 mm")))
pocket7 = doc.addObject("PartDesign::Pocket", "Pocket006")
body.addObject(pocket7)
pocket7.Profile = sketch11
pocket7.Type = "TwoLengths"
pocket7.Length = 1.2
pocket7.Length2 = 5
pocket7.Reversed = True

# Sketch on XZ plane
sketch12 = doc.addObject("Sketcher::SketchObject", "Sketch011")
body.addObject(sketch12)
sketch12.AttachmentSupport = (doc.XZ_Plane, [""])
sketch12.MapMode = "FlatFace"
sketch12.AttachmentOffset = App.Placement(App.Vector(0, 0, -45.3), App.Rotation())
sketch12.addGeometry(Part.Circle(App.Vector(-25, 7.5, 0), App.Vector(0, 0, 1), 2), False)  # 0
sketch12.addGeometry(Part.Circle(App.Vector(-17.9, 7.5, 0), App.Vector(0, 0, 1), 2), False)  # 1
sketch12.addGeometry(Part.Circle(App.Vector(-10.7, 7.5, 0), App.Vector(0, 0, 1), 2), False)  # 2
sketch12.addGeometry(Part.Circle(App.Vector(-3.6, 7.5, 0), App.Vector(0, 0, 1), 2), False)  # 3
sketch12.addGeometry(Part.Circle(App.Vector(3.6, 7.5, 0), App.Vector(0, 0, 1), 2), False)  # 4
sketch12.addGeometry(Part.Circle(App.Vector(10.7, 7.5, 0), App.Vector(0, 0, 1), 2), False)  # 5
sketch12.addGeometry(Part.Circle(App.Vector(17.9, 7.5, 0), App.Vector(0, 0, 1), 2), False)  # 6
sketch12.addGeometry(Part.Circle(App.Vector(25, 7.5, 0), App.Vector(0, 0, 1), 2), False)  # 7
add_polygon(sketch12, [(-25.9, 0.5), (-25.9, -1), (-8, -1), (-8, 0.5)])  # lines 8-11
sketch12.addConstraint(Sketcher.Constraint("Vertical", 8))
sketch12.addConstraint(Sketcher.Constraint("Horizontal", 9))
sketch12.addConstraint(Sketcher.Constraint("Vertical", 10))
sketch12.addConstraint(Sketcher.Constraint("Horizontal", 11))
sketch12.addConstraint(Sketcher.Constraint("Equal", 0, 1))
sketch12.addConstraint(Sketcher.Constraint("Equal", 1, 2))
sketch12.addConstraint(Sketcher.Constraint("Equal", 2, 3))
sketch12.addConstraint(Sketcher.Constraint("Equal", 3, 4))
sketch12.addConstraint(Sketcher.Constraint("Equal", 4, 5))
sketch12.addConstraint(Sketcher.Constraint("Equal", 5, 6))
sketch12.addConstraint(Sketcher.Constraint("Equal", 6, 7))
sketch12.addConstraint(Sketcher.Constraint("Symmetric", 3, 3, 4, 3, -2))
sketch12.addConstraint(Sketcher.Constraint("Symmetric", 2, 3, 5, 3, -2))
sketch12.addConstraint(Sketcher.Constraint("Symmetric", 1, 3, 6, 3, -2))
sketch12.addConstraint(Sketcher.Constraint("Symmetric", 0, 3, 7, 3, -2))
sketch12.addConstraint(Sketcher.Constraint("Horizontal", 0, 3, 1, 3))
sketch12.addConstraint(Sketcher.Constraint("Horizontal", 1, 3, 2, 3))
sketch12.addConstraint(Sketcher.Constraint("Horizontal", 2, 3, 3, 3))
sketch12.addConstraint(Sketcher.Constraint("Diameter", 0, Q("4 mm")))
sketch12.addConstraint(Sketcher.Constraint("DistanceX", 9, 1, 9, 2, Q("18 mm")))
sketch12.addConstraint(Sketcher.Constraint("DistanceY", 8, 2, 8, 1, Q("1.5 mm")))
sketch12.addConstraint(Sketcher.Constraint("DistanceX", 0, 3, -1, 1, Q("25 mm")))
sketch12.addConstraint(Sketcher.Constraint("DistanceY", 8, 2, -1, 1, Q("1 mm")))
sketch12.addConstraint(Sketcher.Constraint("DistanceY", 10, 2, 2, 3, Q("7 mm")))
sketch12.addConstraint(Sketcher.Constraint("DistanceX", 8, 2, -1, 1, Q("25.95 mm")))
sketch12.addConstraint(Sketcher.Constraint("DistanceX", 3, 3, -1, 1, Q("3.571429 mm")))
sketch12.addConstraint(Sketcher.Constraint("DistanceX", 2, 3, 5, 3, Q("21.428572 mm")))
sketch12.addConstraint(Sketcher.Constraint("DistanceX", 1, 3, 5, 3, Q("28.571429 mm")))
pocket8 = doc.addObject("PartDesign::Pocket", "Pocket007")
body.addObject(pocket8)
pocket8.Profile = sketch12
pocket8.Length = 3
pocket8.Reversed = True

# Sketch on XY plane
sketch13 = doc.addObject("Sketcher::SketchObject", "Sketch012")
body.addObject(sketch13)
sketch13.AttachmentSupport = (doc.XY_Plane, [""])
sketch13.MapMode = "FlatFace"
sketch13.addGeometry(Part.Circle(App.Vector(-7, 34, 0), App.Vector(0, 0, 1), 1.6), False)
sketch13.addGeometry(Part.Circle(App.Vector(7, 34, 0), App.Vector(0, 0, 1), 1.6), False)
sketch13.addConstraint(Sketcher.Constraint("Equal", 0, 1))
sketch13.addConstraint(Sketcher.Constraint("Symmetric", 0, 3, 1, 3, -2))
sketch13.addConstraint(Sketcher.Constraint("Diameter", 0, Q("3.3 mm")))
sketch13.addConstraint(Sketcher.Constraint("DistanceX", 0, 3, -1, 1, Q("7 mm")))
sketch13.addConstraint(Sketcher.Constraint("DistanceY", -1, 1, 0, 3, Q("34 mm")))
pocket9 = doc.addObject("PartDesign::Pocket", "Pocket008")
body.addObject(pocket9)
pocket9.Profile = sketch13
pocket9.Type = "ThroughAll"
pocket9.Reversed = True
doc.recompute()

chamfer = doc.addObject("PartDesign::Chamfer", "Chamfer")
body.addObject(chamfer)
chamfer.Base = (pocket9, edges_at(pocket9, [
    (-29.8, 37.35, 0.75),
    (-29.8, 31.35, 1.5),
    (-29.8, 25.35, 0.75),
    (-29.8, 9.95, 5.5),
    (-29.8, 0.2, 2.75),
    (-29.8, 19.7, 2.75),
    (-29.8, -11.55, 5),
    (8.55, 44.1, 1),
    (0.3, 44.1, 2),
    (-7.95, 44.1, 1.25),
]))
chamfer.Size = 1.19
doc.recompute()

chamfer2 = doc.addObject("PartDesign::Chamfer", "Chamfer001")
body.addObject(chamfer2)
chamfer2.Base = (chamfer, edges_at(chamfer, [
    (-7.15, -44.3, 6.95),
    (1.1, -44.3, 13.9),
    (10.85, -44.3, 6.95),
    (19.1, -44.3, 13.9),
    (9.35, -44.3, 6.95),
    (27.35, -44.3, 6.95),
]))
chamfer2.Size = 0.99
doc.recompute()

chamfer3 = doc.addObject("PartDesign::Chamfer", "Chamfer002")
body.addObject(chamfer3)
chamfer3.Base = (chamfer2, edges_at(chamfer2, [
    (-29, 9.95, 6),
    (-29, 21.2, 3),
    (-29, -1.3, 3),
    (-29, -11.55, 6.5),
    (-29, 23.85, 1),
    (-29, 31.35, 2),
    (-29, 38.85, 1),
]))
chamfer3.Size = 0.49
doc.recompute()

chamfer4 = doc.addObject("PartDesign::Chamfer", "Chamfer003")
body.addObject(chamfer4)
chamfer4.Base = (chamfer3, edges_at(chamfer3, [(0, 45.3, 15), (0, -45.3, 15)]))
chamfer4.Size = 1

# Sketch on XY plane
sketch14 = doc.addObject("Sketcher::SketchObject", "Sketch013")
body.addObject(sketch14)
sketch14.AttachmentSupport = (doc.XY_Plane, [""])
sketch14.MapMode = "FlatFace"
sketch14.AttachmentOffset = App.Placement(App.Vector(0, 0, 14), App.Rotation())
sketch14.addGeometry(Part.ArcOfCircle(Part.Circle(App.Vector(-6, 14, 0), App.Vector(0, 0, 1), 4.5), math.radians(90), math.radians(180)), False)
sketch14.addGeometry(Part.LineSegment(App.Vector(-10.5, 14, 0), App.Vector(-10.5, -10, 0)), False)
sketch14.addGeometry(Part.ArcOfCircle(Part.Circle(App.Vector(-6, -10, 0), App.Vector(0, 0, 1), 4.5), math.radians(180), math.radians(270)), False)
sketch14.addGeometry(Part.LineSegment(App.Vector(-6, -14.5, 0), App.Vector(18, -14.5, 0)), False)
sketch14.addGeometry(Part.ArcOfCircle(Part.Circle(App.Vector(18, -10, 0), App.Vector(0, 0, 1), 4.5), math.radians(-90), math.radians(0)), False)
sketch14.addGeometry(Part.LineSegment(App.Vector(22.5, -10, 0), App.Vector(22.5, 14, 0)), False)
sketch14.addGeometry(Part.ArcOfCircle(Part.Circle(App.Vector(18, 14, 0), App.Vector(0, 0, 1), 4.5), math.radians(0), math.radians(90)), False)
sketch14.addGeometry(Part.LineSegment(App.Vector(18, 18.5, 0), App.Vector(-6, 18.5, 0)), False)
sketch14.addConstraint(Sketcher.Constraint("Tangent", 0, 2, 1, 1))
sketch14.addConstraint(Sketcher.Constraint("Tangent", 1, 2, 2, 1))
sketch14.addConstraint(Sketcher.Constraint("Tangent", 2, 2, 3, 1))
sketch14.addConstraint(Sketcher.Constraint("Tangent", 3, 2, 4, 1))
sketch14.addConstraint(Sketcher.Constraint("Tangent", 4, 2, 5, 1))
sketch14.addConstraint(Sketcher.Constraint("Tangent", 5, 2, 6, 1))
sketch14.addConstraint(Sketcher.Constraint("Tangent", 6, 2, 7, 1))
sketch14.addConstraint(Sketcher.Constraint("Tangent", 7, 2, 0, 1))
sketch14.addConstraint(Sketcher.Constraint("Vertical", 1))
sketch14.addConstraint(Sketcher.Constraint("Horizontal", 3))
sketch14.addConstraint(Sketcher.Constraint("Vertical", 5))
sketch14.addConstraint(Sketcher.Constraint("Horizontal", 7))
sketch14.addConstraint(Sketcher.Constraint("Equal", 0, 2))
sketch14.addConstraint(Sketcher.Constraint("Equal", 2, 4))
sketch14.addConstraint(Sketcher.Constraint("Equal", 4, 6))
sketch14.addConstraint(Sketcher.Constraint("Equal", 7, 1))
sketch14.addConstraint(Sketcher.Constraint("Radius", 0, Q("4.499998 mm")))
sketch14.addConstraint(Sketcher.Constraint("DistanceX", 3, 1, 3, 2, Q("24 mm")))
sketch14.addConstraint(Sketcher.Constraint("DistanceX", 0, 3, -1, 1, Q("6.000002 mm")))
sketch14.addConstraint(Sketcher.Constraint("DistanceY", -1, 1, 0, 3, Q("14.000002 mm")))
pad4 = doc.addObject("PartDesign::Pad", "Pad003")
body.addObject(pad4)
pad4.Profile = sketch14
pad4.Length = 6
pad4.Reversed = True

# Sketch on XY plane
sketch15 = doc.addObject("Sketcher::SketchObject", "Sketch014")
body.addObject(sketch15)
sketch15.AttachmentSupport = (doc.XY_Plane, [""])
sketch15.MapMode = "FlatFace"
sketch15.AttachmentOffset = App.Placement(App.Vector(0, 0, 15), App.Rotation())
sketch15.addGeometry(Part.ArcOfCircle(Part.Circle(App.Vector(-6.2, 14.2, 0), App.Vector(0, 0, 1), 3), math.radians(90), math.radians(180)), False)
sketch15.addGeometry(Part.LineSegment(App.Vector(-9.2, 14.2, 0), App.Vector(-9.2, -10.2, 0)), False)
sketch15.addGeometry(Part.ArcOfCircle(Part.Circle(App.Vector(-6.2, -10.2, 0), App.Vector(0, 0, 1), 3), math.radians(-180), math.radians(-90)), False)
sketch15.addGeometry(Part.LineSegment(App.Vector(-6.2, -13.2, 0), App.Vector(18.2, -13.2, 0)), False)
sketch15.addGeometry(Part.ArcOfCircle(Part.Circle(App.Vector(18.2, -10.2, 0), App.Vector(0, 0, 1), 3), math.radians(-90), math.radians(0)), False)
sketch15.addGeometry(Part.LineSegment(App.Vector(21.2, -10.2, 0), App.Vector(21.2, 14.2, 0)), False)
sketch15.addGeometry(Part.ArcOfCircle(Part.Circle(App.Vector(18.2, 14.2, 0), App.Vector(0, 0, 1), 3), math.radians(0), math.radians(90)), False)
sketch15.addGeometry(Part.LineSegment(App.Vector(18.2, 17.2, 0), App.Vector(-6.2, 17.2, 0)), False)
sketch15.addConstraint(Sketcher.Constraint("Tangent", 0, 2, 1, 1))
sketch15.addConstraint(Sketcher.Constraint("Tangent", 1, 2, 2, 1))
sketch15.addConstraint(Sketcher.Constraint("Tangent", 2, 2, 3, 1))
sketch15.addConstraint(Sketcher.Constraint("Tangent", 3, 2, 4, 1))
sketch15.addConstraint(Sketcher.Constraint("Tangent", 4, 2, 5, 1))
sketch15.addConstraint(Sketcher.Constraint("Tangent", 5, 2, 6, 1))
sketch15.addConstraint(Sketcher.Constraint("Tangent", 6, 2, 7, 1))
sketch15.addConstraint(Sketcher.Constraint("Tangent", 7, 2, 0, 1))
sketch15.addConstraint(Sketcher.Constraint("Vertical", 1))
sketch15.addConstraint(Sketcher.Constraint("Horizontal", 3))
sketch15.addConstraint(Sketcher.Constraint("Vertical", 5))
sketch15.addConstraint(Sketcher.Constraint("Horizontal", 7))
sketch15.addConstraint(Sketcher.Constraint("Equal", 0, 2))
sketch15.addConstraint(Sketcher.Constraint("Equal", 2, 4))
sketch15.addConstraint(Sketcher.Constraint("Equal", 4, 6))
sketch15.addConstraint(Sketcher.Constraint("Equal", 7, 1))
sketch15.addConstraint(Sketcher.Constraint("Radius", 0, Q("3.000001 mm")))
sketch15.addConstraint(Sketcher.Constraint("DistanceX", 3, 1, 3, 2, Q("24.4 mm")))
sketch15.addConstraint(Sketcher.Constraint("DistanceX", 0, 3, -1, 1, Q("6.199999 mm")))
sketch15.addConstraint(Sketcher.Constraint("DistanceY", -1, 1, 0, 3, Q("14.199999 mm")))
pocket10 = doc.addObject("PartDesign::Pocket", "Pocket009")
body.addObject(pocket10)
pocket10.Profile = sketch15
pocket10.Length = 6

# Sketch on XY plane
sketch16 = doc.addObject("Sketcher::SketchObject", "Sketch015")
body.addObject(sketch16)
sketch16.AttachmentSupport = (doc.XY_Plane, [""])
sketch16.MapMode = "FlatFace"
sketch16.AttachmentOffset = App.Placement(App.Vector(0, 0, 8), App.Rotation())
sketch16.addGeometry(Part.Circle(App.Vector(-6, 14, 0), App.Vector(0, 0, 1), 4.5), False)
sketch16.addGeometry(Part.Circle(App.Vector(18, 14, 0), App.Vector(0, 0, 1), 4.5), False)
sketch16.addGeometry(Part.Circle(App.Vector(-6, -10, 0), App.Vector(0, 0, 1), 4.5), False)
sketch16.addGeometry(Part.Circle(App.Vector(18, -10, 0), App.Vector(0, 0, 1), 4.5), False)
sketch16.addConstraint(Sketcher.Constraint("Equal", 0, 1))
sketch16.addConstraint(Sketcher.Constraint("Equal", 1, 2))
sketch16.addConstraint(Sketcher.Constraint("Equal", 2, 3))
sketch16.addConstraint(Sketcher.Constraint("Horizontal", 0, 3, 1, 3))
sketch16.addConstraint(Sketcher.Constraint("Horizontal", 2, 3, 3, 3))
sketch16.addConstraint(Sketcher.Constraint("Vertical", 0, 3, 2, 3))
sketch16.addConstraint(Sketcher.Constraint("Vertical", 1, 3, 3, 3))
sketch16.addConstraint(Sketcher.Constraint("Diameter", 0, Q("9 mm")))
sketch16.addConstraint(Sketcher.Constraint("DistanceX", 0, 3, -1, 1, Q("6 mm")))
sketch16.addConstraint(Sketcher.Constraint("DistanceY", -1, 1, 0, 3, Q("14 mm")))
sketch16.addConstraint(Sketcher.Constraint("DistanceX", -1, 1, 1, 3, Q("18 mm")))
sketch16.addConstraint(Sketcher.Constraint("DistanceY", 2, 3, -1, 1, Q("10 mm")))
pad5 = doc.addObject("PartDesign::Pad", "Pad004")
body.addObject(pad5)
pad5.Profile = sketch16
pad5.Length = 3
pad5.Reversed = True

# Sketch on XY plane
sketch17 = doc.addObject("Sketcher::SketchObject", "Sketch016")
body.addObject(sketch17)
sketch17.AttachmentSupport = (doc.XY_Plane, [""])
sketch17.MapMode = "FlatFace"
sketch17.addGeometry(Part.Circle(App.Vector(6, 2, 0), App.Vector(0, 0, 1), 14.3), False)
sketch17.addGeometry(Part.Circle(App.Vector(-6, 14, 0), App.Vector(0, 0, 1), 1.4), False)
sketch17.addGeometry(Part.Circle(App.Vector(18, 14, 0), App.Vector(0, 0, 1), 1.4), False)
sketch17.addGeometry(Part.Circle(App.Vector(18, -10, 0), App.Vector(0, 0, 1), 1.4), False)
sketch17.addGeometry(Part.Circle(App.Vector(-6, -10, 0), App.Vector(0, 0, 1), 1.4), False)
sketch17.addConstraint(Sketcher.Constraint("Equal", 1, 2))
sketch17.addConstraint(Sketcher.Constraint("Equal", 2, 3))
sketch17.addConstraint(Sketcher.Constraint("Equal", 3, 4))
sketch17.addConstraint(Sketcher.Constraint("Horizontal", 1, 3, 2, 3))
sketch17.addConstraint(Sketcher.Constraint("Horizontal", 3, 3, 4, 3))
sketch17.addConstraint(Sketcher.Constraint("Vertical", 2, 3, 3, 3))
sketch17.addConstraint(Sketcher.Constraint("Vertical", 1, 3, 4, 3))
sketch17.addConstraint(Sketcher.Constraint("Diameter", 0, Q("28.6 mm")))
sketch17.addConstraint(Sketcher.Constraint("Diameter", 1, Q("2.7 mm")))
sketch17.addConstraint(Sketcher.Constraint("DistanceX", -1, 1, 0, 3, Q("6 mm")))
sketch17.addConstraint(Sketcher.Constraint("DistanceY", -1, 1, 0, 3, Q("2 mm")))
sketch17.addConstraint(Sketcher.Constraint("DistanceX", 1, 3, -1, 1, Q("6 mm")))
sketch17.addConstraint(Sketcher.Constraint("DistanceY", -1, 1, 1, 3, Q("14 mm")))
sketch17.addConstraint(Sketcher.Constraint("DistanceX", -1, 1, 2, 3, Q("18 mm")))
sketch17.addConstraint(Sketcher.Constraint("DistanceY", 3, 3, -1, 1, Q("10 mm")))
pocket11 = doc.addObject("PartDesign::Pocket", "Pocket010")
body.addObject(pocket11)
pocket11.Profile = sketch17
pocket11.Type = "ThroughAll"
pocket11.Midplane = True

# Sketch on XZ plane
sketch18 = doc.addObject("Sketcher::SketchObject", "Sketch017")
body.addObject(sketch18)
sketch18.AttachmentSupport = (doc.XZ_Plane, [""])
sketch18.MapMode = "FlatFace"
add_polygon(sketch18, [(-3.7, 12), (-3.7, 2), (-1.1, 2), (-1.1, 12)])  # lines 0-3
sketch18.addConstraint(Sketcher.Constraint("Vertical", 0))
sketch18.addConstraint(Sketcher.Constraint("Horizontal", 1))
sketch18.addConstraint(Sketcher.Constraint("Vertical", 2))
sketch18.addConstraint(Sketcher.Constraint("Horizontal", 3))
sketch18.addConstraint(Sketcher.Constraint("DistanceY", 0, 2, 0, 1, Q("10 mm")))
sketch18.addConstraint(Sketcher.Constraint("DistanceX", 1, 1, 1, 2, Q("2.6 mm")))
sketch18.addConstraint(Sketcher.Constraint("DistanceY", -1, 1, 0, 2, Q("2 mm")))
sketch18.addConstraint(Sketcher.Constraint("DistanceX", 0, 2, -1, 1, Q("3.7 mm")))
pocket12 = doc.addObject("PartDesign::Pocket", "Pocket011")
body.addObject(pocket12)
pocket12.Profile = sketch18
pocket12.Length = 20
doc.recompute()

chamfer5 = doc.addObject("PartDesign::Chamfer", "Chamfer004")
body.addObject(chamfer5)
chamfer5.Base = (pocket12, edges_at(pocket12, [
    (21.182, -13.182, 5),
    (-9.182, -13.182, 5),
    (-10.315, 15.276, 5),
    (21.182, 17.182, 5),
]))
chamfer5.Size = 1.8
doc.recompute()

fillet = doc.addObject("PartDesign::Fillet", "Fillet")
body.addObject(fillet)
fillet.Base = (chamfer5, edges_at(chamfer5, [(-3.7, 12.507, 7), (-1.1, 14.413, 8.5)]))
fillet.Radius = 1.5
body2 = doc.addObject("PartDesign::Body", "Body001")
doc.recompute()

body.Placement = App.Placement(App.Vector(0, 0, 10.3), App.Rotation(App.Vector(0, 0, 1), 0))
boolean = doc.addObject("PartDesign::Boolean", "Boolean")
body2.addObject(boolean)
boolean.Type = "Fuse"
boolean.addObjects([body])

doc.recompute()
